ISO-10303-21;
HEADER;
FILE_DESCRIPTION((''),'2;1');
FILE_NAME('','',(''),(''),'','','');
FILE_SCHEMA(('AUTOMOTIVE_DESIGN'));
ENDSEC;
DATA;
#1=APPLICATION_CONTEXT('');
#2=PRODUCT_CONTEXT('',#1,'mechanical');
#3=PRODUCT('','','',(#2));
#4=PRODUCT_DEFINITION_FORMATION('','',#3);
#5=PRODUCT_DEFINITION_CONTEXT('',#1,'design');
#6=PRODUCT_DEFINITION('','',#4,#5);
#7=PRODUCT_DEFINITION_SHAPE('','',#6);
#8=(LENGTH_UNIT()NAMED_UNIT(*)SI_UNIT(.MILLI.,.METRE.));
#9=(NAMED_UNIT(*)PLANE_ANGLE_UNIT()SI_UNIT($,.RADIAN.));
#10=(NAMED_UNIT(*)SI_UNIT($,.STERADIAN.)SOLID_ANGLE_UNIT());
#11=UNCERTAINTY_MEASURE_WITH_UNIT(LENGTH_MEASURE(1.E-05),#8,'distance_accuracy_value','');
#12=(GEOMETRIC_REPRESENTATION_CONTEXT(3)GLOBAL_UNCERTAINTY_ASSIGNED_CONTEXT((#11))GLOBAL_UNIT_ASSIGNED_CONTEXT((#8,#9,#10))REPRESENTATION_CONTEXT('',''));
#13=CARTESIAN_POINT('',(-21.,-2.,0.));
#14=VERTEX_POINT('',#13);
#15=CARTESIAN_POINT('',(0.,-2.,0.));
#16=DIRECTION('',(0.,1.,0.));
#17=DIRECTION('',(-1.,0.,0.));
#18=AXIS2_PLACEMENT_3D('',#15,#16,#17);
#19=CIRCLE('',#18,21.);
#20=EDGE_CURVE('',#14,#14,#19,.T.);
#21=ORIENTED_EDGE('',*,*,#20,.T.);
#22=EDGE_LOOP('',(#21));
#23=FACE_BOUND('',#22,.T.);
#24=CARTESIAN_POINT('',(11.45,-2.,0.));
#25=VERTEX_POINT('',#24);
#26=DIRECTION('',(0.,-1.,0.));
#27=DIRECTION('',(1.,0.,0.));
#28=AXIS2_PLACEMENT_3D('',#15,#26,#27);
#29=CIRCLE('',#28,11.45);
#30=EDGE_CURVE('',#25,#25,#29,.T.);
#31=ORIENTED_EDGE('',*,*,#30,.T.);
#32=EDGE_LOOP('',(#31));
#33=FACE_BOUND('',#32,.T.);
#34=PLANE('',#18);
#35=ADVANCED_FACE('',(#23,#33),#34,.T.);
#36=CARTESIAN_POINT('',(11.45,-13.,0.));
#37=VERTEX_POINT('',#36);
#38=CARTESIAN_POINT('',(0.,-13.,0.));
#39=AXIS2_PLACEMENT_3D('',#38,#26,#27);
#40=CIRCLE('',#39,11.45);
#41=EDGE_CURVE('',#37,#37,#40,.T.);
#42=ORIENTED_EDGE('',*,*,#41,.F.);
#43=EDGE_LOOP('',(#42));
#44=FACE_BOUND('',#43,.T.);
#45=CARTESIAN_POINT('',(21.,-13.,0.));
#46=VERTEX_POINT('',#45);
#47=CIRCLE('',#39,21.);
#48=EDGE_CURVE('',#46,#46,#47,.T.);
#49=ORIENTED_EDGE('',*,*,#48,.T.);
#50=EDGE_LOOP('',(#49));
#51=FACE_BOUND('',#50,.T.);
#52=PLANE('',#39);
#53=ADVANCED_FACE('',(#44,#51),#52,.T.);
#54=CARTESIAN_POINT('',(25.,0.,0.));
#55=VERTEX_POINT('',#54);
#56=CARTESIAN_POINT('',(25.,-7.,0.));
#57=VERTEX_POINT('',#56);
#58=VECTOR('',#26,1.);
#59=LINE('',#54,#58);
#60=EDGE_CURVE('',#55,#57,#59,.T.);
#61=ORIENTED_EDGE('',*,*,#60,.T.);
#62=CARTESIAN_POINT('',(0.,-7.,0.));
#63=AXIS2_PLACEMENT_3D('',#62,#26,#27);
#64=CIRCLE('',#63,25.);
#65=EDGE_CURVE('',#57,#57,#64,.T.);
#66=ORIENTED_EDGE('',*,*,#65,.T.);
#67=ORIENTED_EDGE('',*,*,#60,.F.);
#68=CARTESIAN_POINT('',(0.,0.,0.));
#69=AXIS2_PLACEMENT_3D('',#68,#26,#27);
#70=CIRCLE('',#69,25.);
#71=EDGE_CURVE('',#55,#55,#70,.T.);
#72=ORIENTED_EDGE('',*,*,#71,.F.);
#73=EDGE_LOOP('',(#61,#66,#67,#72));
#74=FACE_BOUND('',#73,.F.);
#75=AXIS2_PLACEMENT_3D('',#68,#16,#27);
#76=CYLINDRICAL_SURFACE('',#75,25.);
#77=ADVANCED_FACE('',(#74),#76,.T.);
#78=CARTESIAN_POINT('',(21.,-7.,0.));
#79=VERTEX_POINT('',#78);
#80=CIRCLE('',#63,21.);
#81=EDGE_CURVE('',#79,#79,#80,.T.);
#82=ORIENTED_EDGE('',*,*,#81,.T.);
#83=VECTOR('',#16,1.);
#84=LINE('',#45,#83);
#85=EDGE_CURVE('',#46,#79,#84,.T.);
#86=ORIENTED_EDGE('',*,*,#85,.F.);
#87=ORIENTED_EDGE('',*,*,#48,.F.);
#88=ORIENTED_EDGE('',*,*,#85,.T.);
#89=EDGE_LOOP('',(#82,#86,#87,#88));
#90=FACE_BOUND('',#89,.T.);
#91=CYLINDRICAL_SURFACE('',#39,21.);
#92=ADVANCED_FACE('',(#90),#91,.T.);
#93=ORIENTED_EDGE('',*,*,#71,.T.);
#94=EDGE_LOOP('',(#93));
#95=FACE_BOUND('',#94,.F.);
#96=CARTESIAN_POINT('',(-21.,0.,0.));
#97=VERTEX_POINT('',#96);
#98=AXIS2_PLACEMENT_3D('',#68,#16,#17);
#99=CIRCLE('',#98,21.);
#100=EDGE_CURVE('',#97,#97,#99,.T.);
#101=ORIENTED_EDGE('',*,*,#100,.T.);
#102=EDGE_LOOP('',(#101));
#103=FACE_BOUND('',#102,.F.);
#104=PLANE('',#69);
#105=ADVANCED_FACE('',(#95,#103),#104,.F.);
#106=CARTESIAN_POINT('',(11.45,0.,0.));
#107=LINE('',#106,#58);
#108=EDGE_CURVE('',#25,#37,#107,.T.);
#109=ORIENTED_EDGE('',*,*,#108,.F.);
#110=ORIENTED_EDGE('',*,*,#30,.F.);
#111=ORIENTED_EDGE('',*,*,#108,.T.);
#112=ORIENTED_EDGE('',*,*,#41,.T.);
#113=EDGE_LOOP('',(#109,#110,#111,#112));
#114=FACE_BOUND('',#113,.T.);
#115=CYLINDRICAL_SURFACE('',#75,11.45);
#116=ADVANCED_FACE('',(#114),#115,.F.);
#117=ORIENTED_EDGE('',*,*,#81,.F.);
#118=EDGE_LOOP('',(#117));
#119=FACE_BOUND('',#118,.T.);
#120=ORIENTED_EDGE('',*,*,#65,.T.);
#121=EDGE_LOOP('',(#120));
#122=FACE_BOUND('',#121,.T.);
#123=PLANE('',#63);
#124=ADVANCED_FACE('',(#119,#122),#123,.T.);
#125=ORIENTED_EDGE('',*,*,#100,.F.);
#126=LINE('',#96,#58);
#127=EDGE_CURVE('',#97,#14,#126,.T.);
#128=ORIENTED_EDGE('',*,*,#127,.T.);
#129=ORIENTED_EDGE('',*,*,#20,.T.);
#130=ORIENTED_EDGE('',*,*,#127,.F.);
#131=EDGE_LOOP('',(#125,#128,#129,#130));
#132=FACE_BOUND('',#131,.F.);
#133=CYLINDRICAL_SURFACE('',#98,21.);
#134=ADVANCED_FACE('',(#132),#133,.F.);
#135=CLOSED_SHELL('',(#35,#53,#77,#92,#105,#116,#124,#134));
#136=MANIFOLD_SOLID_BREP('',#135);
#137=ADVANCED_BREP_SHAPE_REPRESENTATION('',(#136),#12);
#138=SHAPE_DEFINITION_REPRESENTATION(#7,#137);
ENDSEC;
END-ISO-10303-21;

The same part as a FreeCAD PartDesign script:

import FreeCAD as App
import Part
import Sketcher

doc = App.newDocument("Part")
body = doc.addObject("PartDesign::Body", "Body")

sketch1 = doc.addObject("Sketcher::SketchObject", "Sketch")
body.addObject(sketch1)
sketch1.AttachmentSupport = (doc.XZ_Plane, [""])
sketch1.MapMode = "FlatFace"
sketch1.addGeometry(Part.Circle(App.Vector(0, 0, 0), App.Vector(0, 0, 1), 25), False)
sketch1.addGeometry(Part.Circle(App.Vector(0, 0, 0), App.Vector(0, 0, 1), 11.45), False)
sketch1.addConstraint(Sketcher.Constraint("Coincident", 0, 3, -1, 1))
sketch1.addConstraint(Sketcher.Constraint("Coincident", 1, 3, -1, 1))
sketch1.addConstraint(Sketcher.Constraint("Diameter", 0, 50.0))
sketch1.addConstraint(Sketcher.Constraint("Diameter", 1, 22.9))
pad1 = doc.addObject("PartDesign::Pad", "Pad")
body.addObject(pad1)
pad1.Profile = sketch1
pad1.Length = 13

sketch2 = doc.addObject("Sketcher::SketchObject", "Sketch001")
body.addObject(sketch2)
sketch2.AttachmentSupport = (doc.XZ_Plane, [""])
sketch2.MapMode = "FlatFace"
sketch2.AttachmentOffset = App.Placement(App.Vector(0, 0, 13), App.Rotation())
sketch2.addGeometry(Part.Circle(App.Vector(0, 0, 0), App.Vector(0, 0, 1), 25), False)
sketch2.addGeometry(Part.Circle(App.Vector(0, 0, 0), App.Vector(0, 0, 1), 21), False)
sketch2.addGeometry(Part.Circle(App.Vector(0, 0, 0), App.Vector(0, 0, 1), 11.45), False)
sketch2.addConstraint(Sketcher.Constraint("Coincident", 0, 3, -1, 1))
sketch2.addConstraint(Sketcher.Constraint("Coincident", 1, 3, -1, 1))
sketch2.addConstraint(Sketcher.Constraint("Coincident", 2, 3, -1, 1))
sketch2.addConstraint(Sketcher.Constraint("Diameter", 0, 50.0))
sketch2.addConstraint(Sketcher.Constraint("Diameter", 1, 42.0))
sketch2.addConstraint(Sketcher.Constraint("Diameter", 2, 22.9))
pocket1 = doc.addObject("PartDesign::Pocket", "Pocket")
body.addObject(pocket1)
pocket1.Profile = sketch2
pocket1.Length = 6

sketch3 = doc.addObject("Sketcher::SketchObject", "Sketch002")
body.addObject(sketch3)
sketch3.AttachmentSupport = (doc.XZ_Plane, [""])
sketch3.MapMode = "FlatFace"
sketch3.addGeometry(Part.Circle(App.Vector(0, 0, 0), App.Vector(0, 0, 1), 21), False)
sketch3.addGeometry(Part.Circle(App.Vector(0, 0, 0), App.Vector(0, 0, 1), 11.45), False)
sketch3.addConstraint(Sketcher.Constraint("Coincident", 0, 3, -1, 1))
sketch3.addConstraint(Sketcher.Constraint("Coincident", 1, 3, -1, 1))
sketch3.addConstraint(Sketcher.Constraint("Diameter", 0, 42.0))
sketch3.addConstraint(Sketcher.Constraint("Diameter", 1, 22.9))
pocket2 = doc.addObject("PartDesign::Pocket", "Pocket001")
body.addObject(pocket2)
pocket2.Profile = sketch3
pocket2.Length = 2
pocket2.Reversed = True

doc.recompute()
